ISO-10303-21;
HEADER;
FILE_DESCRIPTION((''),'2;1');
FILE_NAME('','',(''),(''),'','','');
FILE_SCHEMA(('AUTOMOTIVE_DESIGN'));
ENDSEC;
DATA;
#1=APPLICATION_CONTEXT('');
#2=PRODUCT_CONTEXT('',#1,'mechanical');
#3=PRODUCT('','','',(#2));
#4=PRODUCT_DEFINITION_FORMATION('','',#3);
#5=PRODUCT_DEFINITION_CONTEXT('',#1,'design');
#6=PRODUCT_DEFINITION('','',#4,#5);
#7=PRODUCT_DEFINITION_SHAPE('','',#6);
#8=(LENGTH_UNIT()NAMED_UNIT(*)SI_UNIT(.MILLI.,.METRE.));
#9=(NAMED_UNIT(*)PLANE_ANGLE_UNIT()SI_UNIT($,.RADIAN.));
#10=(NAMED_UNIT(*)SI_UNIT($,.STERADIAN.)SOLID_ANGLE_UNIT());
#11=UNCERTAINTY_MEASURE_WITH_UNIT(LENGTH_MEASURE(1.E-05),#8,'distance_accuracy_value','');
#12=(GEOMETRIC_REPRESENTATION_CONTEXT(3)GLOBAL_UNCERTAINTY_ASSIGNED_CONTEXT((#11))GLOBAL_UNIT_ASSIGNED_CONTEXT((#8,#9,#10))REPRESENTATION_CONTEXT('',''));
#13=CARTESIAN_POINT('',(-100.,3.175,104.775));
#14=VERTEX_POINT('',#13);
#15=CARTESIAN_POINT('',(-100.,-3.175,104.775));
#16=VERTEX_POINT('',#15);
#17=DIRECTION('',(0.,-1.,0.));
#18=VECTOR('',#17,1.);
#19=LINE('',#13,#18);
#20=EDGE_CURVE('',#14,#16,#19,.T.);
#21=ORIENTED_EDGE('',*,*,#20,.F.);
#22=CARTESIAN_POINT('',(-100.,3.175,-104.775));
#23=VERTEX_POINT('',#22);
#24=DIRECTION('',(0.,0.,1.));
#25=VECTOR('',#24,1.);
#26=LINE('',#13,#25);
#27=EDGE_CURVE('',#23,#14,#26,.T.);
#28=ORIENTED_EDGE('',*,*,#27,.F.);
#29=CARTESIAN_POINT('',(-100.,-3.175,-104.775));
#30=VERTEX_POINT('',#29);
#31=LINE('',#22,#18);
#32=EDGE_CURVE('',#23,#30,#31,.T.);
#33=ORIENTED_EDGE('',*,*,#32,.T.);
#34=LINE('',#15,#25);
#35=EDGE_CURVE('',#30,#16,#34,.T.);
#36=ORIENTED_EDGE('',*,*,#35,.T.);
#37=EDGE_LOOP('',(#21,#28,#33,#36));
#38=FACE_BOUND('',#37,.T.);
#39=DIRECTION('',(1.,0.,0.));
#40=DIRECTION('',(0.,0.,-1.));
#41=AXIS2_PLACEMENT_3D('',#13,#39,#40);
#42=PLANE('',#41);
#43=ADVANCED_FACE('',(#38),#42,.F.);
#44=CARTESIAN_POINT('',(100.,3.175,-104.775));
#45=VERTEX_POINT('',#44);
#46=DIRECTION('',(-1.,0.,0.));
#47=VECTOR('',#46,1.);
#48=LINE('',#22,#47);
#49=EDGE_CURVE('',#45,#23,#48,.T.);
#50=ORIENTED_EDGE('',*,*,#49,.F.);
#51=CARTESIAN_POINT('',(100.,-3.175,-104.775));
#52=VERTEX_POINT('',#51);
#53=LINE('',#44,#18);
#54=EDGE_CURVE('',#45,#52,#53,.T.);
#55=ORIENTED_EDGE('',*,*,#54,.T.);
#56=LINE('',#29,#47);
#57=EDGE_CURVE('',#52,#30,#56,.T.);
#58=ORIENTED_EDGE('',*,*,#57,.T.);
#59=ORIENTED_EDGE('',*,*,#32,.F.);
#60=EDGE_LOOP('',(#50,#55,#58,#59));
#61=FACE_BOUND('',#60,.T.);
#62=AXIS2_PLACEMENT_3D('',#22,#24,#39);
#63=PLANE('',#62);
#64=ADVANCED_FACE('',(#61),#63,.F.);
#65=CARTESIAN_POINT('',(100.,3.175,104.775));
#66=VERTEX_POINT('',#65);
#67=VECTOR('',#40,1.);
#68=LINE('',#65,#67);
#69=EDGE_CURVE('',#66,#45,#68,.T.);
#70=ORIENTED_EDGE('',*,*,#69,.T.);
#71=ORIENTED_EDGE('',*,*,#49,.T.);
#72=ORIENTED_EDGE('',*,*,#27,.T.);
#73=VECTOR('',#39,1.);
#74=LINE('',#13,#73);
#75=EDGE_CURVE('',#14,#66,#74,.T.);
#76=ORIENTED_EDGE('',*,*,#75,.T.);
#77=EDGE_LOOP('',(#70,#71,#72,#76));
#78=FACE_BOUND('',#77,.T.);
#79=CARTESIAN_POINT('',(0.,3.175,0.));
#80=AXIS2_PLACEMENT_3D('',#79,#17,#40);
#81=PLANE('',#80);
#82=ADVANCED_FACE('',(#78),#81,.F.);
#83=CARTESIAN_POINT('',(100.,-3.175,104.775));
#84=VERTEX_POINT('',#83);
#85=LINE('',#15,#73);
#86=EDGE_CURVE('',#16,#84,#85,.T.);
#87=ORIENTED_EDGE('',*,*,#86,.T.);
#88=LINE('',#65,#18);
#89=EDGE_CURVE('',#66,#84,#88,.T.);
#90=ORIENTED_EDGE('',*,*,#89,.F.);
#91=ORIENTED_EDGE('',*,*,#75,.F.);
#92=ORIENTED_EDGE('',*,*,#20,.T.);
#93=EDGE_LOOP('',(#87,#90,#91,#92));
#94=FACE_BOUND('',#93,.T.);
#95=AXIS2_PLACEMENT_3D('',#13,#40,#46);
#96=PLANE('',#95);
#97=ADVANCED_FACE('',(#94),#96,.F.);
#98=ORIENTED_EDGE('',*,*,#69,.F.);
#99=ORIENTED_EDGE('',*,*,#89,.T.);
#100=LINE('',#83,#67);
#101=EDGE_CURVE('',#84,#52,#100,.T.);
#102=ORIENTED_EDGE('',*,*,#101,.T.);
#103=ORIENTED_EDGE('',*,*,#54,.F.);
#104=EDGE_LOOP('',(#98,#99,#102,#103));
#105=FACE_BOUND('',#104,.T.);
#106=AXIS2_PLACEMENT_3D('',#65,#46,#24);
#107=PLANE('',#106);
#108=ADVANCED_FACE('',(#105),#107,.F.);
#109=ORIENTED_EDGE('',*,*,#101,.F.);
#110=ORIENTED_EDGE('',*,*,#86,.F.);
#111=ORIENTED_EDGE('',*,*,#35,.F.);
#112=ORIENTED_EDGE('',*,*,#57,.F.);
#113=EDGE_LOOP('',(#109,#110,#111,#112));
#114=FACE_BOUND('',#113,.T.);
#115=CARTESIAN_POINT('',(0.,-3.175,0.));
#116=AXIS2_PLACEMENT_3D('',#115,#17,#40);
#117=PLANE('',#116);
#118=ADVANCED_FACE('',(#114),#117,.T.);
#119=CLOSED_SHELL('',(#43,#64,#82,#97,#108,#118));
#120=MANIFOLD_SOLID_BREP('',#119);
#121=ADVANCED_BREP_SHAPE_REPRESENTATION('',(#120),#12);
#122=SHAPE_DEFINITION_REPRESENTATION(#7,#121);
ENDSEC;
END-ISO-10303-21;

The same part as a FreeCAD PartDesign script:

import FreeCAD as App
import Part
import Sketcher

V = App.Vector
Q = App.Units.Quantity


def add_polygon(sketch, points):
    """Adds a closed chain of lines whose ends are joined by coincident constraints."""
    first, n = sketch.GeometryCount, len(points)
    for a, b in zip(points, points[1:] + points[:1]):
        sketch.addGeometry(Part.LineSegment(App.Vector(*a, 0), App.Vector(*b, 0)), False)
    for i in range(n):
        sketch.addConstraint(Sketcher.Constraint("Coincident", first + i, 2, first + (i + 1) % n, 1))

doc = App.newDocument("Part")
body = doc.addObject("PartDesign::Body", "Body")

# Sketch on XZ plane
sketch1 = doc.addObject("Sketcher::SketchObject", "Sketch")
body.addObject(sketch1)
sketch1.AttachmentSupport = (doc.XZ_Plane, [""])
sketch1.MapMode = "FlatFace"
add_polygon(sketch1, [(-100, -105), (-100, 105), (100, 105), (100, -105)])  # lines 0-3
sketch1.addConstraint(Sketcher.Constraint("Vertical", 0))
sketch1.addConstraint(Sketcher.Constraint("Horizontal", 1))
sketch1.addConstraint(Sketcher.Constraint("Vertical", 2))
sketch1.addConstraint(Sketcher.Constraint("Horizontal", 3))
sketch1.addConstraint(Sketcher.Constraint("Symmetric", 0, 2, 2, 2, -1, 1))
sketch1.addConstraint(Sketcher.Constraint("DistanceY", 0, 1, 0, 2, Q("8.25 in")))
sketch1.addConstraint(Sketcher.Constraint("DistanceX", 1, 1, 1, 2, 200.0))
pad1 = doc.addObject("PartDesign::Pad", "Pad")
body.addObject(pad1)
pad1.Profile = sketch1
pad1.Length = Q("0.25 in")
pad1.Midplane = True

doc.recompute()
